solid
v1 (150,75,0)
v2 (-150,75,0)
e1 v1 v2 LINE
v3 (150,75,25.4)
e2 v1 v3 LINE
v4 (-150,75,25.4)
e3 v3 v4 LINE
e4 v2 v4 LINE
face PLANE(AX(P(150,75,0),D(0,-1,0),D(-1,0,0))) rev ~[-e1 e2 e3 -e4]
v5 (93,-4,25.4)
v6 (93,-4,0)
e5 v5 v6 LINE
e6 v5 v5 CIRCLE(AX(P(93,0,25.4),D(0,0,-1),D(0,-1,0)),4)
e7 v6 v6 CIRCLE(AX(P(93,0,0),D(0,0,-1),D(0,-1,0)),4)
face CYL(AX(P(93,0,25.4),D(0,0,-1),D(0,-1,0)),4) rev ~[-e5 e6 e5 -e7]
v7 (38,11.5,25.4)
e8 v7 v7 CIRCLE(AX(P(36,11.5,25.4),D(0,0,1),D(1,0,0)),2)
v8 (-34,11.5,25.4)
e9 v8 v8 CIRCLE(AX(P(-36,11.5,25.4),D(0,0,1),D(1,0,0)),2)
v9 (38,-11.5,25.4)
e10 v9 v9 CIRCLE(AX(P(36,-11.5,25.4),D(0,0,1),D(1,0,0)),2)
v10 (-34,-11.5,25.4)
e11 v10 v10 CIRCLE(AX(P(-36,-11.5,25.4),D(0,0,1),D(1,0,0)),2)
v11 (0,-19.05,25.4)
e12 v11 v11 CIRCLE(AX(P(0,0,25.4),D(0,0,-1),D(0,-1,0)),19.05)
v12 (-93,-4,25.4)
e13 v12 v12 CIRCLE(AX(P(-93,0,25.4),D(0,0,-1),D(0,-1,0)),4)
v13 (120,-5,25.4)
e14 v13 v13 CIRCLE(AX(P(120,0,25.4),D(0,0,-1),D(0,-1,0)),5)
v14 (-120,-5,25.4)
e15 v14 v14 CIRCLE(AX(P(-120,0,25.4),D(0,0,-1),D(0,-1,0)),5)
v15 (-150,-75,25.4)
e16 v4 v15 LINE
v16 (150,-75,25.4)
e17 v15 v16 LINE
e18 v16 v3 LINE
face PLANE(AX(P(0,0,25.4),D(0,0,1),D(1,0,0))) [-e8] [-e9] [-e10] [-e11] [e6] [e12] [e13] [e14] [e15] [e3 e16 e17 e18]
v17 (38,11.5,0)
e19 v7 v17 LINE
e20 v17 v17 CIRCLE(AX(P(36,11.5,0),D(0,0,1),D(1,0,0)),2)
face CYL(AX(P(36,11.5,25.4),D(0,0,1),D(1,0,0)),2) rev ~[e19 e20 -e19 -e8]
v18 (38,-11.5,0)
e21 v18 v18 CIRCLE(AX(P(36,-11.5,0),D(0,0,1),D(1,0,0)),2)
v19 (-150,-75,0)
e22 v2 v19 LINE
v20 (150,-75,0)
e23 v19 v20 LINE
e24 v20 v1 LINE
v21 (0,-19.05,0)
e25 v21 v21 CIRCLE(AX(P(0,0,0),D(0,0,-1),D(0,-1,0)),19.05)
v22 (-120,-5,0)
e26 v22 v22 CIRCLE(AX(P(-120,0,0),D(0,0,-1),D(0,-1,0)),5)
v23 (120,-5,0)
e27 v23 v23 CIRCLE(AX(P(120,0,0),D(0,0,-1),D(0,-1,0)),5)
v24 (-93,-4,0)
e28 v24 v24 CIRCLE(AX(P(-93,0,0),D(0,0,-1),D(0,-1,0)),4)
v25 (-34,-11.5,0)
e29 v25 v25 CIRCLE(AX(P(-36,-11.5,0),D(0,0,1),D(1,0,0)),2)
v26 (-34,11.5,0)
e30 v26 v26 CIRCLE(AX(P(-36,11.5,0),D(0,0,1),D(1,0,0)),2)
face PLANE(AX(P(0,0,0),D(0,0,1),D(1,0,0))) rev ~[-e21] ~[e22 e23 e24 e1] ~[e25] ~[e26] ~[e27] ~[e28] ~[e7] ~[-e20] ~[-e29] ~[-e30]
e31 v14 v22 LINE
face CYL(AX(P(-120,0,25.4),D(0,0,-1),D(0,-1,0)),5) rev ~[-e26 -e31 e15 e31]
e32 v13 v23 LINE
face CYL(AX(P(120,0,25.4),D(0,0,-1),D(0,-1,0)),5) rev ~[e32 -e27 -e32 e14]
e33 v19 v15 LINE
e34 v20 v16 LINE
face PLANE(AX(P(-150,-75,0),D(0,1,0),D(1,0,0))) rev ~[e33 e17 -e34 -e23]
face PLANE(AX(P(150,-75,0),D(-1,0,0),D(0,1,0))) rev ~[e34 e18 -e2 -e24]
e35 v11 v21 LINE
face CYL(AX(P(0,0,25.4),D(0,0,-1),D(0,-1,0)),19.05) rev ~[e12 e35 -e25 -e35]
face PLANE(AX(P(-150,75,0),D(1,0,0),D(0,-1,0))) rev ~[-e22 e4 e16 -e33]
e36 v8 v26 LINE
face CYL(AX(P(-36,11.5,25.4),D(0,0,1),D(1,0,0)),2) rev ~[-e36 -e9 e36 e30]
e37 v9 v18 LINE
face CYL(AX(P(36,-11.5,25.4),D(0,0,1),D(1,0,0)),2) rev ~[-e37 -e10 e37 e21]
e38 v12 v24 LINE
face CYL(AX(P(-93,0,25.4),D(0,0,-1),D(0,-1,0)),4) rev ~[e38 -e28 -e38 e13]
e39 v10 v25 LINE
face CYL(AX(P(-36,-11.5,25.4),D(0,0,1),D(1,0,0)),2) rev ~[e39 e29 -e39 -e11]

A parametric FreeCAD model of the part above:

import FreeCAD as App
import Part
import Sketcher

V = App.Vector

doc = App.newDocument("Part")
params = doc.addObject("Spreadsheet::Sheet", "Params")
for row, (alias, value) in enumerate([
    ("sketch1_width", "300 mm"),
    ("sketch1_height", "150 mm"),
    ("pad1_length", "25.4 mm"),
    ("sketch2_diameter", "10 mm"),
    ("hole_diameter", "10 mm"),
    ("sketch3_diameter", "8 mm"),
    ("hole2_diameter", "8 mm"),
    ("sketch4_diameter", "38.1 mm"),
    ("hole3_diameter", "38.1 mm"),
    ("sketch5_diameter", "4 mm"),
    ("pocket1_length", "25.4 mm"),
], start=1):
    params.set(f"A{row}", alias)
    params.set(f"B{row}", "=" + value)
    params.setAlias(f"B{row}", alias)

body = doc.addObject("PartDesign::Body", "Body")

sketch1 = doc.addObject("Sketcher::SketchObject", "Sketch")
body.addObject(sketch1)
sketch1.AttachmentSupport = (doc.XY_Plane, [""])
sketch1.MapMode = "FlatFace"
sketch1.addGeometry([
    Part.LineSegment(V(-150, 75, 0), V(-150, -75, 0)),
    Part.LineSegment(V(-150, -75, 0), V(150, -75, 0)),
    Part.LineSegment(V(150, -75, 0), V(150, 75, 0)),
    Part.LineSegment(V(150, 75, 0), V(-150, 75, 0)),
], False)
sketch1.addConstraint([
    Sketcher.Constraint("Coincident", 0, 2, 1, 1),
    Sketcher.Constraint("Coincident", 1, 2, 2, 1),
    Sketcher.Constraint("Coincident", 2, 2, 3, 1),
    Sketcher.Constraint("Coincident", 3, 2, 0, 1),
    Sketcher.Constraint("Vertical", 0),
    Sketcher.Constraint("Horizontal", 1),
    Sketcher.Constraint("Vertical", 2),
    Sketcher.Constraint("Horizontal", 3),
    Sketcher.Constraint("Symmetric", 0, 2, 2, 2, -1, 1),
    Sketcher.Constraint("DistanceX", 1, 1, 1, 2, 300.0),
    Sketcher.Constraint("DistanceY", 0, 2, 0, 1, 150.0),
])
sketch1.setExpression("Constraints[9]", "Params.sketch1_width")
sketch1.setExpression("Constraints[10]", "Params.sketch1_height")
pad1 = doc.addObject("PartDesign::Pad", "Pad")
body.addObject(pad1)
pad1.Profile = sketch1
pad1.setExpression("Length", "Params.pad1_length")

sketch2 = doc.addObject("Sketcher::SketchObject", "Sketch001")
body.addObject(sketch2)
sketch2.AttachmentSupport = (doc.XY_Plane, [""])
sketch2.MapMode = "FlatFace"
sketch2.AttachmentOffset = App.Placement(V(0, 0, 25.4), App.Rotation())
sketch2.addGeometry([
    Part.Circle(V(-120, 0, 0), V(0, 0, 1), 5),
    Part.Circle(V(120, 0, 0), V(0, 0, 1), 5),
], False)
sketch2.addConstraint([
    Sketcher.Constraint("Equal", 0, 1),
    Sketcher.Constraint("Symmetric", 0, 3, 1, 3, -1, 1),
    Sketcher.Constraint("PointOnObject", 0, 3, -1),
    Sketcher.Constraint("Diameter", 0, 10.0),
    Sketcher.Constraint("DistanceX", 0, 3, -1, 1, 120.0),
])
sketch2.setExpression("Constraints[3]", "Params.sketch2_diameter")
doc.recompute()
hole = doc.addObject("PartDesign::Hole", "Hole")
body.addObject(hole)
hole.Profile = sketch2
hole.ThreadType = "None"
hole.setExpression("Diameter", "Params.hole_diameter")
hole.DepthType = "ThroughAll"

sketch3 = doc.addObject("Sketcher::SketchObject", "Sketch002")
body.addObject(sketch3)
sketch3.AttachmentSupport = (doc.XY_Plane, [""])
sketch3.MapMode = "FlatFace"
sketch3.AttachmentOffset = App.Placement(V(0, 0, 25.4), App.Rotation())
sketch3.addGeometry([
    Part.Circle(V(-93, 0, 0), V(0, 0, 1), 4),
    Part.Circle(V(93, 0, 0), V(0, 0, 1), 4),
], False)
sketch3.addConstraint([
    Sketcher.Constraint("Equal", 0, 1),
    Sketcher.Constraint("Symmetric", 0, 3, 1, 3, -1, 1),
    Sketcher.Constraint("PointOnObject", 0, 3, -1),
    Sketcher.Constraint("Diameter", 0, 8.0),
    Sketcher.Constraint("DistanceX", 0, 3, -1, 1, 93.0),
])
sketch3.setExpression("Constraints[3]", "Params.sketch3_diameter")
doc.recompute()
hole2 = doc.addObject("PartDesign::Hole", "Hole001")
body.addObject(hole2)
hole2.Profile = sketch3
hole2.ThreadType = "None"
hole2.setExpression("Diameter", "Params.hole2_diameter")
hole2.DepthType = "ThroughAll"

sketch4 = doc.addObject("Sketcher::SketchObject", "Sketch003")
body.addObject(sketch4)
sketch4.AttachmentSupport = (doc.XY_Plane, [""])
sketch4.MapMode = "FlatFace"
sketch4.AttachmentOffset = App.Placement(V(0, 0, 25.4), App.Rotation())
sketch4.addGeometry(Part.Circle(V(0, 0, 0), V(0, 0, 1), 19.05), False)
sketch4.addConstraint([
    Sketcher.Constraint("Coincident", 0, 3, -1, 1),
    Sketcher.Constraint("Diameter", 0, 38.1),
])
sketch4.setExpression("Constraints[1]", "Params.sketch4_diameter")
doc.recompute()
hole3 = doc.addObject("PartDesign::Hole", "Hole002")
body.addObject(hole3)
hole3.Profile = sketch4
hole3.ThreadType = "None"
hole3.setExpression("Diameter", "Params.hole3_diameter")
hole3.DepthType = "ThroughAll"

sketch5 = doc.addObject("Sketcher::SketchObject", "Sketch004")
body.addObject(sketch5)
sketch5.AttachmentSupport = (doc.XY_Plane, [""])
sketch5.MapMode = "FlatFace"
sketch5.AttachmentOffset = App.Placement(V(0, 0, 25.4), App.Rotation())
sketch5.addGeometry([
    Part.Circle(V(-36, 11.5, 0), V(0, 0, 1), 2),
    Part.Circle(V(-36, -11.5, 0), V(0, 0, 1), 2),
    Part.Circle(V(36, 11.5, 0), V(0, 0, 1), 2),
    Part.Circle(V(36, -11.5, 0), V(0, 0, 1), 2),
], False)
sketch5.addConstraint([
    Sketcher.Constraint("Equal", 0, 1),
    Sketcher.Constraint("Equal", 1, 2),
    Sketcher.Constraint("Equal", 2, 3),
    Sketcher.Constraint("Symmetric", 1, 3, 2, 3, -1, 1),
    Sketcher.Constraint("Symmetric", 0, 3, 3, 3, -1, 1),
    Sketcher.Constraint("Symmetric", 0, 3, 2, 3, -2),
    Sketcher.Constraint("Diameter", 0, 4.0),
    Sketcher.Constraint("DistanceX", 0, 3, -1, 1, 36.0),
    Sketcher.Constraint("DistanceY", -1, 1, 0, 3, 11.5),
])
sketch5.setExpression("Constraints[6]", "Params.sketch5_diameter")
pocket1 = doc.addObject("PartDesign::Pocket", "Pocket")
body.addObject(pocket1)
pocket1.Profile = sketch5
pocket1.setExpression("Length", "Params.pocket1_length")

doc.recompute()
